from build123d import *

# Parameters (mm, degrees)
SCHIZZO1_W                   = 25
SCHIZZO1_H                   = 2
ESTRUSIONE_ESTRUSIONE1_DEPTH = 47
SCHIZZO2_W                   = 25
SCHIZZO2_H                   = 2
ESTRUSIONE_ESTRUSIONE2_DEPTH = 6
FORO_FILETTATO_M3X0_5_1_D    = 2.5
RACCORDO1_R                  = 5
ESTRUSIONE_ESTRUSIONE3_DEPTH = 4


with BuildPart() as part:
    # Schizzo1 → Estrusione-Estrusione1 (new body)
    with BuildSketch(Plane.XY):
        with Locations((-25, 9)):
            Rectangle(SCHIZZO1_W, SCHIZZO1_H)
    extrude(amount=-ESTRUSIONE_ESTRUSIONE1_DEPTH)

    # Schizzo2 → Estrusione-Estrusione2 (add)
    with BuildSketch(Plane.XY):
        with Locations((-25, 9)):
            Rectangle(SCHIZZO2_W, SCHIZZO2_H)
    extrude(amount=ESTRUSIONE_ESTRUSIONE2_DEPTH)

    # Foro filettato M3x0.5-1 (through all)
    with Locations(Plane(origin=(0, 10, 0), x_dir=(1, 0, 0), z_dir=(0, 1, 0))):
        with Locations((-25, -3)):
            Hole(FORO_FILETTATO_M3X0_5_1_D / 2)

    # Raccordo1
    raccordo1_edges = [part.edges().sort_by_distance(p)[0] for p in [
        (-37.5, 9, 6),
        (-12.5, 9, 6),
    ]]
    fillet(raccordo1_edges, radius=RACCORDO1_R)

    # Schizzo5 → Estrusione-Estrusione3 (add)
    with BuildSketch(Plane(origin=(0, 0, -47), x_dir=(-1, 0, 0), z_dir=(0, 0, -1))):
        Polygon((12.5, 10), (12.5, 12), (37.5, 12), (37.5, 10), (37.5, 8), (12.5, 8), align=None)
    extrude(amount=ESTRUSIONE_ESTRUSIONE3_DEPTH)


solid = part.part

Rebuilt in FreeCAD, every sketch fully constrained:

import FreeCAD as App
import Part
import Sketcher

V = App.Vector
Q = App.Units.Quantity


def edges_at(feature, points):
    """Names of the edges that pass closest to the given points."""
    edges = feature.Shape.Edges
    near = lambda p: min(range(len(edges)), key=lambda i: edges[i].distToShape(Part.Vertex(*p))[0])
    return sorted({f"Edge{near(p) + 1}" for p in points})

doc = App.newDocument("Part")
body = doc.addObject("PartDesign::Body", "Body")

# Sketch on XY plane
sketch1 = body.newObject("Sketcher::SketchObject", "Sketch")
sketch1.AttachmentSupport = (doc.getObject("XY_Plane"), [""])
sketch1.MapMode = "FlatFace"
sketch1.addGeometry([
    Part.LineSegment(V(-37.5, 10, 0), V(-37.5, 8, 0)),
    Part.LineSegment(V(-37.5, 8, 0), V(-12.5, 8, 0)),
    Part.LineSegment(V(-12.5, 8, 0), V(-12.5, 10, 0)),
    Part.LineSegment(V(-12.5, 10, 0), V(-37.5, 10, 0)),
], False)
sketch1.addConstraint([
    Sketcher.Constraint("Coincident", 0, 2, 1, 1),
    Sketcher.Constraint("Coincident", 1, 2, 2, 1),
    Sketcher.Constraint("Coincident", 2, 2, 3, 1),
    Sketcher.Constraint("Coincident", 3, 2, 0, 1),
    Sketcher.Constraint("Vertical", 0),
    Sketcher.Constraint("Horizontal", 1),
    Sketcher.Constraint("Vertical", 2),
    Sketcher.Constraint("Horizontal", 3),
    Sketcher.Constraint("DistanceX", 1, 1, 1, 2, Q("25 mm")),
    Sketcher.Constraint("DistanceY", 0, 2, 0, 1, Q("2 mm")),
    Sketcher.Constraint("DistanceY", -1, 1, 0, 2, Q("8 mm")),
    Sketcher.Constraint("DistanceX", 0, 2, -1, 1, Q("37.5 mm")),
])
pad1 = body.newObject("PartDesign::Pad", "Pad")
pad1.Profile = sketch1
pad1.Length = 47
pad1.Reversed = True

# Sketch on XY plane
sketch2 = body.newObject("Sketcher::SketchObject", "Sketch001")
sketch2.AttachmentSupport = (doc.getObject("XY_Plane"), [""])
sketch2.MapMode = "FlatFace"
sketch2.addGeometry([
    Part.LineSegment(V(-37.5, 10, 0), V(-37.5, 8, 0)),
    Part.LineSegment(V(-37.5, 8, 0), V(-12.5, 8, 0)),
    Part.LineSegment(V(-12.5, 8, 0), V(-12.5, 10, 0)),
    Part.LineSegment(V(-12.5, 10, 0), V(-37.5, 10, 0)),
], False)
sketch2.addConstraint([
    Sketcher.Constraint("Coincident", 0, 2, 1, 1),
    Sketcher.Constraint("Coincident", 1, 2, 2, 1),
    Sketcher.Constraint("Coincident", 2, 2, 3, 1),
    Sketcher.Constraint("Coincident", 3, 2, 0, 1),
    Sketcher.Constraint("Vertical", 0),
    Sketcher.Constraint("Horizontal", 1),
    Sketcher.Constraint("Vertical", 2),
    Sketcher.Constraint("Horizontal", 3),
    Sketcher.Constraint("DistanceX", 1, 1, 1, 2, Q("25 mm")),
    Sketcher.Constraint("DistanceY", 0, 2, 0, 1, Q("2 mm")),
    Sketcher.Constraint("DistanceY", -1, 1, 0, 2, Q("8 mm")),
    Sketcher.Constraint("DistanceX", 0, 2, -1, 1, Q("37.5 mm")),
])
pad2 = body.newObject("PartDesign::Pad", "Pad001")
pad2.Profile = sketch2
pad2.Length = 6

# Sketch on XZ plane
sketch3 = body.newObject("Sketcher::SketchObject", "Sketch002")
sketch3.AttachmentSupport = (doc.getObject("XZ_Plane"), [""])
sketch3.MapMode = "FlatFace"
sketch3.AttachmentOffset = App.Placement(V(0, 0, -10), App.Rotation())
sketch3.addGeometry(Part.Circle(V(-25, 3, 0), V(0, 0, 1), 1.2), False)
sketch3.addConstraint([
    Sketcher.Constraint("Diameter", 0, Q("2.5 mm")),
    Sketcher.Constraint("DistanceX", 0, 3, -1, 1, Q("25 mm")),
    Sketcher.Constraint("DistanceY", -1, 1, 0, 3, Q("3 mm")),
])
doc.recompute()
hole = body.newObject("PartDesign::Hole", "Hole")
hole.Profile = sketch3
hole.ThreadType = "None"
hole.Diameter = 2.5
hole.DepthType = "ThroughAll"
hole.Reversed = True
doc.recompute()

fillet = body.newObject("PartDesign::Fillet", "Fillet")
fillet.Base = (hole, edges_at(hole, [(-37.5, 9, 6), (-12.5, 9, 6)]))
fillet.Radius = 5

# Sketch on XY plane
sketch4 = body.newObject("Sketcher::SketchObject", "Sketch003")
sketch4.AttachmentSupport = (doc.getObject("XY_Plane"), [""])
sketch4.MapMode = "FlatFace"
sketch4.AttachmentOffset = App.Placement(V(0, 0, -47), App.Rotation())
sketch4.addGeometry([
    Part.LineSegment(V(-12.5, 12, 0), V(-12.5, 8, 0)),
    Part.LineSegment(V(-12.5, 8, 0), V(-37.5, 8, 0)),
    Part.LineSegment(V(-37.5, 8, 0), V(-37.5, 12, 0)),
    Part.LineSegment(V(-37.5, 12, 0), V(-12.5, 12, 0)),
], False)
sketch4.addConstraint([
    Sketcher.Constraint("Coincident", 0, 2, 1, 1),
    Sketcher.Constraint("Coincident", 1, 2, 2, 1),
    Sketcher.Constraint("Coincident", 2, 2, 3, 1),
    Sketcher.Constraint("Coincident", 3, 2, 0, 1),
    Sketcher.Constraint("Vertical", 0),
    Sketcher.Constraint("Horizontal", 1),
    Sketcher.Constraint("Vertical", 2),
    Sketcher.Constraint("Horizontal", 3),
    Sketcher.Constraint("DistanceX", 1, 2, 1, 1, Q("25 mm")),
    Sketcher.Constraint("DistanceY", 0, 2, 0, 1, Q("4 mm")),
    Sketcher.Constraint("DistanceY", -1, 1, 0, 2, Q("8 mm")),
    Sketcher.Constraint("DistanceX", 0, 2, -1, 1, Q("12.5 mm")),
])
pad3 = body.newObject("PartDesign::Pad", "Pad002")
pad3.Profile = sketch4
pad3.Length = 4
pad3.Reversed = True

doc.recompute()
